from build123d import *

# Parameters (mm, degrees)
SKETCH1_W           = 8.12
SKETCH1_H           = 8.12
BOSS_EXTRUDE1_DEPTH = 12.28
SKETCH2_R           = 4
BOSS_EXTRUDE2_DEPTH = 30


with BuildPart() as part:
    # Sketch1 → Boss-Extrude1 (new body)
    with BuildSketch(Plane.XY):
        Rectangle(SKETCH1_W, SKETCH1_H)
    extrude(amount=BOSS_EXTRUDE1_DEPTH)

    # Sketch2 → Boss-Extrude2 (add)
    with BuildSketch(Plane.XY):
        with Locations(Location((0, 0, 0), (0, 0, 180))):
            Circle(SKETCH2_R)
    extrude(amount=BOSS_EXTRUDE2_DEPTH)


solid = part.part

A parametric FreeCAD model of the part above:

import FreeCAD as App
import Part
import Sketcher
Q = App.Units.Quantity

doc = App.newDocument("Part")
body = doc.addObject("PartDesign::Body", "Body")

# Sketch on XY plane
sketch1 = doc.addObject("Sketcher::SketchObject", "Sketch")
body.addObject(sketch1)
sketch1.AttachmentSupport = (doc.XY_Plane, [""])
sketch1.MapMode = "FlatFace"
sketch1.addGeometry(Part.LineSegment(App.Vector(-4, 4, 0), App.Vector(-4, -4, 0)), False)
sketch1.addGeometry(Part.LineSegment(App.Vector(-4, -4, 0), App.Vector(4, -4, 0)), False)
sketch1.addGeometry(Part.LineSegment(App.Vector(4, -4, 0), App.Vector(4, 4, 0)), False)
sketch1.addGeometry(Part.LineSegment(App.Vector(4, 4, 0), App.Vector(-4, 4, 0)), False)
sketch1.addConstraint(Sketcher.Constraint("Coincident", 0, 2, 1, 1))
sketch1.addConstraint(Sketcher.Constraint("Coincident", 1, 2, 2, 1))
sketch1.addConstraint(Sketcher.Constraint("Coincident", 2, 2, 3, 1))
sketch1.addConstraint(Sketcher.Constraint("Coincident", 3, 2, 0, 1))
sketch1.addConstraint(Sketcher.Constraint("Vertical", 0))
sketch1.addConstraint(Sketcher.Constraint("Horizontal", 1))
sketch1.addConstraint(Sketcher.Constraint("Vertical", 2))
sketch1.addConstraint(Sketcher.Constraint("Horizontal", 3))
sketch1.addConstraint(Sketcher.Constraint("Symmetric", 0, 2, 2, 2, -1, 1))
sketch1.addConstraint(Sketcher.Constraint("Equal", 3, 0))
sketch1.addConstraint(Sketcher.Constraint("DistanceX", 1, 1, 1, 2, Q("8.12 mm")))
pad1 = doc.addObject("PartDesign::Pad", "Pad")
body.addObject(pad1)
pad1.Profile = sketch1
pad1.Length = 12.28

# Sketch on XY plane
sketch2 = doc.addObject("Sketcher::SketchObject", "Sketch001")
body.addObject(sketch2)
sketch2.AttachmentSupport = (doc.XY_Plane, [""])
sketch2.MapMode = "FlatFace"
sketch2.addGeometry(Part.Circle(App.Vector(0, 0, 0), App.Vector(0, 0, 1), 4), False)
sketch2.addConstraint(Sketcher.Constraint("Coincident", 0, 3, -1, 1))
sketch2.addConstraint(Sketcher.Constraint("Diameter", 0, Q("8 mm")))
pad2 = doc.addObject("PartDesign::Pad", "Pad001")
body.addObject(pad2)
pad2.Profile = sketch2
pad2.Length = 30

doc.recompute()
